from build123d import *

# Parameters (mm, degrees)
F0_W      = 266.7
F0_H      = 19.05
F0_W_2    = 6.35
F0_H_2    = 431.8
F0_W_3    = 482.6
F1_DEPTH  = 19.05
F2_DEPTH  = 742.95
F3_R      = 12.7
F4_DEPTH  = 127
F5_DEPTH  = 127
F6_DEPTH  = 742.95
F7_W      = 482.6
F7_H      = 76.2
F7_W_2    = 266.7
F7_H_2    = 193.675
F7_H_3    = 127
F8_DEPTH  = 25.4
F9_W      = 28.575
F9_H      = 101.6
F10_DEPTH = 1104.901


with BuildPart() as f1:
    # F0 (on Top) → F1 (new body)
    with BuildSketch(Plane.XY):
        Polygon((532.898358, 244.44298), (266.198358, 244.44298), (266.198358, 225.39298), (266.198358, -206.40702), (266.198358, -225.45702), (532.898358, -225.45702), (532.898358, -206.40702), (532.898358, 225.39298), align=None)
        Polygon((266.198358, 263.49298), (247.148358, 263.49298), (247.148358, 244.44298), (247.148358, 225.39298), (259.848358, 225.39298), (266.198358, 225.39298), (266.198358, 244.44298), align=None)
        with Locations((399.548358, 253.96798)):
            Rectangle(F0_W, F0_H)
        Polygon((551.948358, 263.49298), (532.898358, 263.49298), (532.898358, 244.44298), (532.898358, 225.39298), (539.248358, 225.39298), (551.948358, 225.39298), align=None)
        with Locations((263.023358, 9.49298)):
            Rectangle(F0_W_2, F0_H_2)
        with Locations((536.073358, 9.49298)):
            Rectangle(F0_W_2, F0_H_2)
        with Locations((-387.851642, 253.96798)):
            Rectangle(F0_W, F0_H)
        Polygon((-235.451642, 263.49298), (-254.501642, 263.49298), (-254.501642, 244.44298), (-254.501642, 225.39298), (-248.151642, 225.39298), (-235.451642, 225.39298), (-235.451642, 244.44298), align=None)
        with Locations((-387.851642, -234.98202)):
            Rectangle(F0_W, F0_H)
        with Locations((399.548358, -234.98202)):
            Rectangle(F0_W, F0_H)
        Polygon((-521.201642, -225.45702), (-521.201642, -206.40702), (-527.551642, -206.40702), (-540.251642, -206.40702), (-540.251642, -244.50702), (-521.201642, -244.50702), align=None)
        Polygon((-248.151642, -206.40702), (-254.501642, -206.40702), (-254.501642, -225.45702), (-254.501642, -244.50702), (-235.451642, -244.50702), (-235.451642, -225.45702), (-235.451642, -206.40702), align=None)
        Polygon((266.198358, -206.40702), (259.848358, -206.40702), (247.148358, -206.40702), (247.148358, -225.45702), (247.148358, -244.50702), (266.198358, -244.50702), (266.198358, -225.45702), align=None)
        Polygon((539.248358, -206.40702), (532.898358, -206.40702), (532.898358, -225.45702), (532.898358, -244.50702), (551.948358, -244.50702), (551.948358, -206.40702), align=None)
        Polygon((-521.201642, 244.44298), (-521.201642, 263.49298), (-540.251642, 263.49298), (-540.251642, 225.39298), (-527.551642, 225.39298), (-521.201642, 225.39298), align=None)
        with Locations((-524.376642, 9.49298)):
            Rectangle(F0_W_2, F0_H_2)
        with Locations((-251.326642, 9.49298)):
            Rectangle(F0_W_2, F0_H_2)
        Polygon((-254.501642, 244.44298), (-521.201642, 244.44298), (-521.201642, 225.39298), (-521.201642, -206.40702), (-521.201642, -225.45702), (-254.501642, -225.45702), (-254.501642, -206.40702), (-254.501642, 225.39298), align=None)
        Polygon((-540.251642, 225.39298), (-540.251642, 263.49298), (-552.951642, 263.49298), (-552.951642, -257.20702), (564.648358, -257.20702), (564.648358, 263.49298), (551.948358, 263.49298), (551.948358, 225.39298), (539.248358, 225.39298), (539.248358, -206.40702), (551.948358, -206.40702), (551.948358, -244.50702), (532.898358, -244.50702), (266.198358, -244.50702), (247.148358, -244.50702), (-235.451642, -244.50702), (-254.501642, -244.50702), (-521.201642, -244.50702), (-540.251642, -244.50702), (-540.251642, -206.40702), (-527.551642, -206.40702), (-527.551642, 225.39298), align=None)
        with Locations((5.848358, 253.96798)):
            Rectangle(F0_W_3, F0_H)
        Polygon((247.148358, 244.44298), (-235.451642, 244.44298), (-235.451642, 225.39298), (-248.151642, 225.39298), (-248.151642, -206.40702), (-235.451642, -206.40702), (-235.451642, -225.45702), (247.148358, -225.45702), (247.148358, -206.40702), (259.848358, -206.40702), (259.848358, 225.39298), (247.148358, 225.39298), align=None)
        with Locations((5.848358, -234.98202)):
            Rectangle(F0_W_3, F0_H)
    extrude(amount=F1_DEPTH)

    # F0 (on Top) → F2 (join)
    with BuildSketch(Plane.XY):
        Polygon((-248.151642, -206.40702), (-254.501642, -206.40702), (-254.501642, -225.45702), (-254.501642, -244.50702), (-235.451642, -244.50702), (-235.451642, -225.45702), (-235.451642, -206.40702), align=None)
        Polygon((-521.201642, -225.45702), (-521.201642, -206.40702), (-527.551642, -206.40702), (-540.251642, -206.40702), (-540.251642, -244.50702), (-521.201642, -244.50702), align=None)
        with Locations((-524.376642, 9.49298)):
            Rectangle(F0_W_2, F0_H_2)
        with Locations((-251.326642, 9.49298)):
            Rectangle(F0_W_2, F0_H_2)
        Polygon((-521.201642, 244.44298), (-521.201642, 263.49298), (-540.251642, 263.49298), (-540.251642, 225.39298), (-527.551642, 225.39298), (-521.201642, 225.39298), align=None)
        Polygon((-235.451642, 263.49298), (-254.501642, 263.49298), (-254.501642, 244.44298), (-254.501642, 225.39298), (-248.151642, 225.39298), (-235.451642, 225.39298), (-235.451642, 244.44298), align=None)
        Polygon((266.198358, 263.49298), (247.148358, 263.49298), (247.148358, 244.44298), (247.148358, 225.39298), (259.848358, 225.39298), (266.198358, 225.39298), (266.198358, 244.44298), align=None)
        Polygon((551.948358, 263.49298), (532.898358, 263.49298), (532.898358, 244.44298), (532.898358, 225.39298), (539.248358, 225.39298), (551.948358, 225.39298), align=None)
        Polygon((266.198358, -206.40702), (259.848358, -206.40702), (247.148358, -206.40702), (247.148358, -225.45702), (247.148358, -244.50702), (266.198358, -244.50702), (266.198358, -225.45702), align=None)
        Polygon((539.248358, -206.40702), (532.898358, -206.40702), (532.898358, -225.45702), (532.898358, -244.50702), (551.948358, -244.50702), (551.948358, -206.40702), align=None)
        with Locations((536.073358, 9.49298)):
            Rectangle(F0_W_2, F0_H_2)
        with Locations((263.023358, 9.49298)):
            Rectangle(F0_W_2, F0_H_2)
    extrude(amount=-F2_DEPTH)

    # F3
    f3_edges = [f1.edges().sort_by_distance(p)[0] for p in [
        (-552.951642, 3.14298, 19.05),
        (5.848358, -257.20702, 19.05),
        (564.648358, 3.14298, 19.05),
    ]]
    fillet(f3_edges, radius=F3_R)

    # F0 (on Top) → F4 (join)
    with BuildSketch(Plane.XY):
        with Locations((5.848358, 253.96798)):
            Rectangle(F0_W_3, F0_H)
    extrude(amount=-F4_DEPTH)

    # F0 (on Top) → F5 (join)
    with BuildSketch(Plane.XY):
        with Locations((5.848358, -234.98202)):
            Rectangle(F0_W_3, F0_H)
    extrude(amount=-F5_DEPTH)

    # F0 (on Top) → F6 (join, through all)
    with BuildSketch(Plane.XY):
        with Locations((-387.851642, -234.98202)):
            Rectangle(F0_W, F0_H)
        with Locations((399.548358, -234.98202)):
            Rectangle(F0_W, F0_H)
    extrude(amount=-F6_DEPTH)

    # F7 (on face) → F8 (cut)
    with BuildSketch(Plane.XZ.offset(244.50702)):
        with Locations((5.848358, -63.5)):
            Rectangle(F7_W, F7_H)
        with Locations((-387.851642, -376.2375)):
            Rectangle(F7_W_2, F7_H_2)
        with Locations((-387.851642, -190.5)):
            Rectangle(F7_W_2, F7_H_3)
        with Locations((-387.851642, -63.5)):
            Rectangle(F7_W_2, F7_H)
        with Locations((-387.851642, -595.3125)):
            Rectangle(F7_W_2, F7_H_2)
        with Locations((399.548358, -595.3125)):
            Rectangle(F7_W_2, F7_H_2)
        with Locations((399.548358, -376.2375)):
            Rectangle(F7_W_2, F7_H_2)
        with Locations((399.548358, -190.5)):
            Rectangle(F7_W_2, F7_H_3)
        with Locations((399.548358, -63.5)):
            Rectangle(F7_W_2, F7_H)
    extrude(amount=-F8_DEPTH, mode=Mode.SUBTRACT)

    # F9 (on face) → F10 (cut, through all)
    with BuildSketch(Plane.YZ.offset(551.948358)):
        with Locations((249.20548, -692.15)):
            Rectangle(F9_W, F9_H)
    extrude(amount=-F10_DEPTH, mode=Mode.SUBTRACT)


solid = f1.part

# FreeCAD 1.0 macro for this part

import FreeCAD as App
import Part
import Sketcher
from FreeCAD import Vector
Q = App.Units.Quantity


def edges_at(feature, points):
    """Names of the edges that pass closest to the given points."""
    edges = feature.Shape.Edges
    near = lambda p: min(range(len(edges)), key=lambda i: edges[i].distToShape(Part.Vertex(*p))[0])
    return sorted({f"Edge{near(p) + 1}" for p in points})


def add_polygon(sketch, points):
    """Adds a closed chain of lines whose ends are joined by coincident constraints."""
    first, n = sketch.GeometryCount, len(points)
    for a, b in zip(points, points[1:] + points[:1]):
        sketch.addGeometry(Part.LineSegment(App.Vector(*a, 0), App.Vector(*b, 0)), False)
    for i in range(n):
        sketch.addConstraint(Sketcher.Constraint("Coincident", first + i, 2, first + (i + 1) % n, 1))

doc = App.newDocument("Part")
body = doc.addObject("PartDesign::Body", "Body")

# Sketch on XY plane
sketch1 = body.newObject("Sketcher::SketchObject", "Sketch")
sketch1.AttachmentSupport = (doc.getObject("XY_Plane"), [""])
sketch1.MapMode = "FlatFace"
add_polygon(sketch1, [(-553, 263), (-553, -257), (565, -257), (565, 263)])  # lines 0-3
sketch1.addConstraint([
    Sketcher.Constraint("Vertical", 0),
    Sketcher.Constraint("Horizontal", 1),
    Sketcher.Constraint("Vertical", 2),
    Sketcher.Constraint("Horizontal", 3),
    Sketcher.Constraint("DistanceX", 1, 1, 1, 2, Q("44 in")),
    Sketcher.Constraint("DistanceY", 0, 2, 0, 1, Q("20.5 in")),
    Sketcher.Constraint("DistanceX", 0, 2, -1, 1, Q("552.951642 mm")),
    Sketcher.Constraint("DistanceY", 0, 2, -1, 1, Q("257.20702 mm")),
])
pad1 = body.newObject("PartDesign::Pad", "Pad")
pad1.Profile = sketch1
pad1.Length = Q("0.75 in")

# Sketch on XY plane
sketch2 = body.newObject("Sketcher::SketchObject", "Sketch001")
sketch2.AttachmentSupport = (doc.getObject("XY_Plane"), [""])
sketch2.MapMode = "FlatFace"
add_polygon(sketch2, [(-255, -245), (-235, -245), (-235, -206), (-248, -206), (-248, 225), (-235, 225), (-235, 263), (-255, 263)])  # lines 0-7
add_polygon(sketch2, [(-528, -206), (-540, -206), (-540, -245), (-521, -245), (-521, 263), (-540, 263), (-540, 225), (-528, 225)])  # lines 8-15
add_polygon(sketch2, [(266, 263), (247, 263), (247, 225), (260, 225), (260, -206), (247, -206), (247, -245), (266, -245)])  # lines 16-23
add_polygon(sketch2, [(552, 263), (533, 263), (533, -245), (552, -245), (552, -206), (539, -206), (539, 225), (552, 225)])  # lines 24-31
sketch2.addConstraint([
    Sketcher.Constraint("Horizontal", 0),
    Sketcher.Constraint("Vertical", 1),
    Sketcher.Constraint("Horizontal", 2),
    Sketcher.Constraint("Vertical", 3),
    Sketcher.Constraint("Horizontal", 4),
    Sketcher.Constraint("Vertical", 5),
    Sketcher.Constraint("Horizontal", 6),
    Sketcher.Constraint("Vertical", 7),
    Sketcher.Constraint("Horizontal", 8),
    Sketcher.Constraint("Vertical", 9),
    Sketcher.Constraint("Horizontal", 10),
    Sketcher.Constraint("Vertical", 11),
    Sketcher.Constraint("Horizontal", 12),
    Sketcher.Constraint("Vertical", 13),
    Sketcher.Constraint("Horizontal", 14),
    Sketcher.Constraint("Vertical", 15),
    Sketcher.Constraint("Horizontal", 16),
    Sketcher.Constraint("Vertical", 17),
    Sketcher.Constraint("Horizontal", 18),
    Sketcher.Constraint("Vertical", 19),
    Sketcher.Constraint("Horizontal", 20),
    Sketcher.Constraint("Vertical", 21),
    Sketcher.Constraint("Horizontal", 22),
    Sketcher.Constraint("Vertical", 23),
    Sketcher.Constraint("Horizontal", 24),
    Sketcher.Constraint("Vertical", 25),
    Sketcher.Constraint("Horizontal", 26),
    Sketcher.Constraint("Vertical", 27),
    Sketcher.Constraint("Horizontal", 28),
    Sketcher.Constraint("Vertical", 29),
    Sketcher.Constraint("Horizontal", 30),
    Sketcher.Constraint("Vertical", 31),
    Sketcher.Constraint("Horizontal", 2, 2, 8, 2),
    Sketcher.Constraint("Horizontal", 7, 2, 9, 2),
    Sketcher.Constraint("Horizontal", 6, 2, 11, 2),
    Sketcher.Constraint("Horizontal", 4, 2, 13, 2),
    Sketcher.Constraint("Horizontal", 12, 2, 16, 2),
    Sketcher.Constraint("Horizontal", 14, 2, 17, 2),
    Sketcher.Constraint("Horizontal", 15, 2, 19, 2),
    Sketcher.Constraint("Horizontal", 10, 2, 21, 2),
    Sketcher.Constraint("Horizontal", 23, 2, 24, 2),
    Sketcher.Constraint("Horizontal", 22, 2, 25, 2),
    Sketcher.Constraint("Horizontal", 20, 2, 27, 2),
    Sketcher.Constraint("Horizontal", 18, 2, 29, 2),
    Sketcher.Constraint("Vertical", 1, 2, 4, 2),
    Sketcher.Constraint("Vertical", 9, 2, 12, 2),
    Sketcher.Constraint("Vertical", 17, 2, 20, 2),
    Sketcher.Constraint("Vertical", 27, 2, 30, 2),
    Sketcher.Constraint("Equal", 4, 8),
    Sketcher.Constraint("Equal", 6, 10),
    Sketcher.Constraint("Equal", 12, 16),
    Sketcher.Constraint("Equal", 14, 18),
    Sketcher.Constraint("Equal", 22, 24),
    Sketcher.Constraint("Equal", 20, 28),
    Sketcher.Constraint("Equal", 1, 5),
    Sketcher.Constraint("DistanceY", 3, 1, 3, 2, Q("17 in")),
    Sketcher.Constraint("DistanceY", 7, 2, 7, 1, Q("20 in")),
    Sketcher.Constraint("DistanceX", 2, 2, 2, 1, Q("0.5 in")),
    Sketcher.Constraint("DistanceX", 8, 2, 1, 2, Q("12 in")),
    Sketcher.Constraint("DistanceX", 5, 2, 16, 2, Q("19 in")),
    Sketcher.Constraint("DistanceX", 21, 2, 26, 2, Q("12 in")),
    Sketcher.Constraint("DistanceX", 0, 1, 0, 2, Q("0.75 in")),
    Sketcher.Constraint("DistanceX", 0, 2, -1, 1, Q("235.451642 mm")),
    Sketcher.Constraint("DistanceY", 0, 2, -1, 1, Q("244.50702 mm")),
])
pad2 = body.newObject("PartDesign::Pad", "Pad001")
pad2.Profile = sketch2
pad2.Length = Q("29.25 in")
pad2.Reversed = True
doc.recompute()

fillet = body.newObject("PartDesign::Fillet", "Fillet")
fillet.Base = (pad2, edges_at(pad2, [(-552.952, 3.143, 19.05), (5.848, -257.207, 19.05), (564.648, 3.143, 19.05)]))
fillet.Radius = Q("0.5 in")

# Sketch on XY plane
sketch3 = body.newObject("Sketcher::SketchObject", "Sketch002")
sketch3.AttachmentSupport = (doc.getObject("XY_Plane"), [""])
sketch3.MapMode = "FlatFace"
add_polygon(sketch3, [(-235, 263), (-235, 244), (247, 244), (247, 263)])  # lines 0-3
sketch3.addConstraint([
    Sketcher.Constraint("Vertical", 0),
    Sketcher.Constraint("Horizontal", 1),
    Sketcher.Constraint("Vertical", 2),
    Sketcher.Constraint("Horizontal", 3),
    Sketcher.Constraint("DistanceX", 1, 1, 1, 2, Q("19 in")),
    Sketcher.Constraint("DistanceY", 0, 2, 0, 1, Q("0.75 in")),
    Sketcher.Constraint("DistanceX", 0, 2, -1, 1, Q("235.451642 mm")),
    Sketcher.Constraint("DistanceY", -1, 1, 0, 2, Q("244.44298 mm")),
])
pad3 = body.newObject("PartDesign::Pad", "Pad002")
pad3.Profile = sketch3
pad3.Length = Q("5 in")
pad3.Reversed = True

# Sketch on XY plane
sketch4 = body.newObject("Sketcher::SketchObject", "Sketch003")
sketch4.AttachmentSupport = (doc.getObject("XY_Plane"), [""])
sketch4.MapMode = "FlatFace"
add_polygon(sketch4, [(-235, -225), (-235, -245), (247, -245), (247, -225)])  # lines 0-3
sketch4.addConstraint([
    Sketcher.Constraint("Vertical", 0),
    Sketcher.Constraint("Horizontal", 1),
    Sketcher.Constraint("Vertical", 2),
    Sketcher.Constraint("Horizontal", 3),
    Sketcher.Constraint("DistanceX", 1, 1, 1, 2, Q("19 in")),
    Sketcher.Constraint("DistanceY", 0, 2, 0, 1, Q("0.75 in")),
    Sketcher.Constraint("DistanceX", 0, 2, -1, 1, Q("235.451642 mm")),
    Sketcher.Constraint("DistanceY", 0, 2, -1, 1, Q("244.50702 mm")),
])
pad4 = body.newObject("PartDesign::Pad", "Pad003")
pad4.Profile = sketch4
pad4.Length = Q("5 in")
pad4.Reversed = True

# Sketch on XY plane
sketch5 = body.newObject("Sketcher::SketchObject", "Sketch004")
sketch5.AttachmentSupport = (doc.getObject("XY_Plane"), [""])
sketch5.MapMode = "FlatFace"
add_polygon(sketch5, [(-521, -225), (-521, -245), (-255, -245), (-255, -225)])  # lines 0-3
add_polygon(sketch5, [(266, -225), (266, -245), (533, -245), (533, -225)])  # lines 4-7
sketch5.addConstraint([
    Sketcher.Constraint("Vertical", 0),
    Sketcher.Constraint("Horizontal", 1),
    Sketcher.Constraint("Vertical", 2),
    Sketcher.Constraint("Horizontal", 3),
    Sketcher.Constraint("Vertical", 4),
    Sketcher.Constraint("Horizontal", 5),
    Sketcher.Constraint("Vertical", 6),
    Sketcher.Constraint("Horizontal", 7),
    Sketcher.Constraint("Horizontal", 1, 2, 4, 2),
    Sketcher.Constraint("Horizontal", 3, 2, 6, 2),
    Sketcher.Constraint("Equal", 3, 5),
    Sketcher.Constraint("DistanceX", 1, 1, 1, 2, Q("10.5 in")),
    Sketcher.Constraint("DistanceX", 0, 2, 4, 2, Q("31 in")),
    Sketcher.Constraint("DistanceY", 0, 2, 0, 1, Q("0.75 in")),
    Sketcher.Constraint("DistanceX", 0, 2, -1, 1, Q("521.201642 mm")),
    Sketcher.Constraint("DistanceY", 0, 2, -1, 1, Q("244.50702 mm")),
])
pad5 = body.newObject("PartDesign::Pad", "Pad004")
pad5.Profile = sketch5
pad5.Length = Q("29.25 in")
pad5.Reversed = True

# Sketch on XZ plane
sketch6 = body.newObject("Sketcher::SketchObject", "Sketch005")
sketch6.AttachmentSupport = (doc.getObject("XZ_Plane"), [""])
sketch6.MapMode = "FlatFace"
sketch6.AttachmentOffset = App.Placement(Vector(0, 0, 244.50702), App.Rotation())
add_polygon(sketch6, [(-235, -25), (-235, -102), (247, -102), (247, -25)])  # lines 0-3
add_polygon(sketch6, [(-521, -279), (-521, -473), (-255, -473), (-255, -279)])  # lines 4-7
add_polygon(sketch6, [(-521, -127), (-521, -254), (-255, -254), (-255, -127)])  # lines 8-11
add_polygon(sketch6, [(-521, -25), (-521, -102), (-255, -102), (-255, -25)])  # lines 12-15
add_polygon(sketch6, [(-521, -498), (-521, -692), (-255, -692), (-255, -498)])  # lines 16-19
add_polygon(sketch6, [(266, -498), (266, -692), (533, -692), (533, -498)])  # lines 20-23
add_polygon(sketch6, [(266, -279), (266, -473), (533, -473), (533, -279)])  # lines 24-27
add_polygon(sketch6, [(266, -127), (266, -254), (533, -254), (533, -127)])  # lines 28-31
add_polygon(sketch6, [(266, -25), (266, -102), (533, -102), (533, -25)])  # lines 32-35
sketch6.addConstraint([
    Sketcher.Constraint("Vertical", 0),
    Sketcher.Constraint("Horizontal", 1),
    Sketcher.Constraint("Vertical", 2),
    Sketcher.Constraint("Horizontal", 3),
    Sketcher.Constraint("Vertical", 4),
    Sketcher.Constraint("Horizontal", 5),
    Sketcher.Constraint("Vertical", 6),
    Sketcher.Constraint("Horizontal", 7),
    Sketcher.Constraint("Vertical", 8),
    Sketcher.Constraint("Horizontal", 9),
    Sketcher.Constraint("Vertical", 10),
    Sketcher.Constraint("Horizontal", 11),
    Sketcher.Constraint("Vertical", 12),
    Sketcher.Constraint("Horizontal", 13),
    Sketcher.Constraint("Vertical", 14),
    Sketcher.Constraint("Horizontal", 15),
    Sketcher.Constraint("Vertical", 16),
    Sketcher.Constraint("Horizontal", 17),
    Sketcher.Constraint("Vertical", 18),
    Sketcher.Constraint("Horizontal", 19),
    Sketcher.Constraint("Vertical", 20),
    Sketcher.Constraint("Horizontal", 21),
    Sketcher.Constraint("Vertical", 22),
    Sketcher.Constraint("Horizontal", 23),
    Sketcher.Constraint("Vertical", 24),
    Sketcher.Constraint("Horizontal", 25),
    Sketcher.Constraint("Vertical", 26),
    Sketcher.Constraint("Horizontal", 27),
    Sketcher.Constraint("Vertical", 28),
    Sketcher.Constraint("Horizontal", 29),
    Sketcher.Constraint("Vertical", 30),
    Sketcher.Constraint("Horizontal", 31),
    Sketcher.Constraint("Vertical", 32),
    Sketcher.Constraint("Horizontal", 33),
    Sketcher.Constraint("Vertical", 34),
    Sketcher.Constraint("Horizontal", 35),
    Sketcher.Constraint("Horizontal", 1, 2, 12, 2),
    Sketcher.Constraint("Horizontal", 3, 2, 14, 2),
    Sketcher.Constraint("Horizontal", 17, 2, 20, 2),
    Sketcher.Constraint("Horizontal", 19, 2, 22, 2),
    Sketcher.Constraint("Horizontal", 5, 2, 24, 2),
    Sketcher.Constraint("Horizontal", 7, 2, 26, 2),
    Sketcher.Constraint("Horizontal", 9, 2, 28, 2),
    Sketcher.Constraint("Horizontal", 11, 2, 30, 2),
    Sketcher.Constraint("Horizontal", 13, 2, 32, 2),
    Sketcher.Constraint("Horizontal", 15, 2, 34, 2),
    Sketcher.Constraint("Vertical", 7, 2, 8, 2),
    Sketcher.Constraint("Vertical", 6, 2, 9, 2),
    Sketcher.Constraint("Vertical", 11, 2, 12, 2),
    Sketcher.Constraint("Vertical", 10, 2, 13, 2),
    Sketcher.Constraint("Vertical", 15, 2, 16, 2),
    Sketcher.Constraint("Vertical", 14, 2, 17, 2),
    Sketcher.Constraint("Vertical", 23, 2, 24, 2),
    Sketcher.Constraint("Vertical", 22, 2, 25, 2),
    Sketcher.Constraint("Vertical", 27, 2, 28, 2),
    Sketcher.Constraint("Vertical", 26, 2, 29, 2),
    Sketcher.Constraint("Vertical", 31, 2, 32, 2),
    Sketcher.Constraint("Vertical", 30, 2, 33, 2),
    Sketcher.Constraint("Equal", 19, 21),
    Sketcher.Constraint("Equal", 6, 16),
    Sketcher.Constraint("DistanceX", 1, 1, 1, 2, Q("19 in")),
    Sketcher.Constraint("DistanceY", 0, 2, 0, 1, Q("3 in")),
    Sketcher.Constraint("DistanceY", 8, 2, 8, 1, Q("5 in")),
    Sketcher.Constraint("DistanceX", 5, 1, 5, 2, Q("10.5 in")),
    Sketcher.Constraint("DistanceY", 0, 2, -1, 1, Q("4 in")),
    Sketcher.Constraint("DistanceY", 6, 2, -1, 1, Q("11 in")),
    Sketcher.Constraint("DistanceY", 8, 2, -1, 1, Q("10 in")),
    Sketcher.Constraint("DistanceY", 18, 2, 5, 2, Q("1 in")),
    Sketcher.Constraint("DistanceX", 17, 2, 21, 2, Q("31 in")),
    Sketcher.Constraint("DistanceY", 4, 2, 4, 1, Q("7.625 in")),
    Sketcher.Constraint("DistanceX", 4, 2, 0, 2, Q("11.25 in")),
    Sketcher.Constraint("DistanceX", 0, 2, -1, 1, Q("235.451642 mm")),
])
pocket1 = body.newObject("PartDesign::Pocket", "Pocket")
pocket1.Profile = sketch6
pocket1.Length = Q("1 in")

# Sketch on YZ plane
sketch7 = body.newObject("Sketcher::SketchObject", "Sketch006")
sketch7.AttachmentSupport = (doc.getObject("YZ_Plane"), [""])
sketch7.MapMode = "FlatFace"
sketch7.AttachmentOffset = App.Placement(Vector(0, 0, 551.948358), App.Rotation())
add_polygon(sketch7, [(235, -641), (235, -743), (263, -743), (263, -641)])  # lines 0-3
sketch7.addConstraint([
    Sketcher.Constraint("Vertical", 0),
    Sketcher.Constraint("Horizontal", 1),
    Sketcher.Constraint("Vertical", 2),
    Sketcher.Constraint("Horizontal", 3),
    Sketcher.Constraint("DistanceY", 0, 2, 0, 1, Q("4 in")),
    Sketcher.Constraint("DistanceX", 1, 1, 1, 2, Q("1.125 in")),
    Sketcher.Constraint("DistanceY", 0, 2, -1, 1, Q("29.25 in")),
    Sketcher.Constraint("DistanceX", -1, 1, 0, 2, Q("234.91798 mm")),
])
pocket2 = body.newObject("PartDesign::Pocket", "Pocket001")
pocket2.Profile = sketch7
pocket2.Type = "ThroughAll"

doc.recompute()
